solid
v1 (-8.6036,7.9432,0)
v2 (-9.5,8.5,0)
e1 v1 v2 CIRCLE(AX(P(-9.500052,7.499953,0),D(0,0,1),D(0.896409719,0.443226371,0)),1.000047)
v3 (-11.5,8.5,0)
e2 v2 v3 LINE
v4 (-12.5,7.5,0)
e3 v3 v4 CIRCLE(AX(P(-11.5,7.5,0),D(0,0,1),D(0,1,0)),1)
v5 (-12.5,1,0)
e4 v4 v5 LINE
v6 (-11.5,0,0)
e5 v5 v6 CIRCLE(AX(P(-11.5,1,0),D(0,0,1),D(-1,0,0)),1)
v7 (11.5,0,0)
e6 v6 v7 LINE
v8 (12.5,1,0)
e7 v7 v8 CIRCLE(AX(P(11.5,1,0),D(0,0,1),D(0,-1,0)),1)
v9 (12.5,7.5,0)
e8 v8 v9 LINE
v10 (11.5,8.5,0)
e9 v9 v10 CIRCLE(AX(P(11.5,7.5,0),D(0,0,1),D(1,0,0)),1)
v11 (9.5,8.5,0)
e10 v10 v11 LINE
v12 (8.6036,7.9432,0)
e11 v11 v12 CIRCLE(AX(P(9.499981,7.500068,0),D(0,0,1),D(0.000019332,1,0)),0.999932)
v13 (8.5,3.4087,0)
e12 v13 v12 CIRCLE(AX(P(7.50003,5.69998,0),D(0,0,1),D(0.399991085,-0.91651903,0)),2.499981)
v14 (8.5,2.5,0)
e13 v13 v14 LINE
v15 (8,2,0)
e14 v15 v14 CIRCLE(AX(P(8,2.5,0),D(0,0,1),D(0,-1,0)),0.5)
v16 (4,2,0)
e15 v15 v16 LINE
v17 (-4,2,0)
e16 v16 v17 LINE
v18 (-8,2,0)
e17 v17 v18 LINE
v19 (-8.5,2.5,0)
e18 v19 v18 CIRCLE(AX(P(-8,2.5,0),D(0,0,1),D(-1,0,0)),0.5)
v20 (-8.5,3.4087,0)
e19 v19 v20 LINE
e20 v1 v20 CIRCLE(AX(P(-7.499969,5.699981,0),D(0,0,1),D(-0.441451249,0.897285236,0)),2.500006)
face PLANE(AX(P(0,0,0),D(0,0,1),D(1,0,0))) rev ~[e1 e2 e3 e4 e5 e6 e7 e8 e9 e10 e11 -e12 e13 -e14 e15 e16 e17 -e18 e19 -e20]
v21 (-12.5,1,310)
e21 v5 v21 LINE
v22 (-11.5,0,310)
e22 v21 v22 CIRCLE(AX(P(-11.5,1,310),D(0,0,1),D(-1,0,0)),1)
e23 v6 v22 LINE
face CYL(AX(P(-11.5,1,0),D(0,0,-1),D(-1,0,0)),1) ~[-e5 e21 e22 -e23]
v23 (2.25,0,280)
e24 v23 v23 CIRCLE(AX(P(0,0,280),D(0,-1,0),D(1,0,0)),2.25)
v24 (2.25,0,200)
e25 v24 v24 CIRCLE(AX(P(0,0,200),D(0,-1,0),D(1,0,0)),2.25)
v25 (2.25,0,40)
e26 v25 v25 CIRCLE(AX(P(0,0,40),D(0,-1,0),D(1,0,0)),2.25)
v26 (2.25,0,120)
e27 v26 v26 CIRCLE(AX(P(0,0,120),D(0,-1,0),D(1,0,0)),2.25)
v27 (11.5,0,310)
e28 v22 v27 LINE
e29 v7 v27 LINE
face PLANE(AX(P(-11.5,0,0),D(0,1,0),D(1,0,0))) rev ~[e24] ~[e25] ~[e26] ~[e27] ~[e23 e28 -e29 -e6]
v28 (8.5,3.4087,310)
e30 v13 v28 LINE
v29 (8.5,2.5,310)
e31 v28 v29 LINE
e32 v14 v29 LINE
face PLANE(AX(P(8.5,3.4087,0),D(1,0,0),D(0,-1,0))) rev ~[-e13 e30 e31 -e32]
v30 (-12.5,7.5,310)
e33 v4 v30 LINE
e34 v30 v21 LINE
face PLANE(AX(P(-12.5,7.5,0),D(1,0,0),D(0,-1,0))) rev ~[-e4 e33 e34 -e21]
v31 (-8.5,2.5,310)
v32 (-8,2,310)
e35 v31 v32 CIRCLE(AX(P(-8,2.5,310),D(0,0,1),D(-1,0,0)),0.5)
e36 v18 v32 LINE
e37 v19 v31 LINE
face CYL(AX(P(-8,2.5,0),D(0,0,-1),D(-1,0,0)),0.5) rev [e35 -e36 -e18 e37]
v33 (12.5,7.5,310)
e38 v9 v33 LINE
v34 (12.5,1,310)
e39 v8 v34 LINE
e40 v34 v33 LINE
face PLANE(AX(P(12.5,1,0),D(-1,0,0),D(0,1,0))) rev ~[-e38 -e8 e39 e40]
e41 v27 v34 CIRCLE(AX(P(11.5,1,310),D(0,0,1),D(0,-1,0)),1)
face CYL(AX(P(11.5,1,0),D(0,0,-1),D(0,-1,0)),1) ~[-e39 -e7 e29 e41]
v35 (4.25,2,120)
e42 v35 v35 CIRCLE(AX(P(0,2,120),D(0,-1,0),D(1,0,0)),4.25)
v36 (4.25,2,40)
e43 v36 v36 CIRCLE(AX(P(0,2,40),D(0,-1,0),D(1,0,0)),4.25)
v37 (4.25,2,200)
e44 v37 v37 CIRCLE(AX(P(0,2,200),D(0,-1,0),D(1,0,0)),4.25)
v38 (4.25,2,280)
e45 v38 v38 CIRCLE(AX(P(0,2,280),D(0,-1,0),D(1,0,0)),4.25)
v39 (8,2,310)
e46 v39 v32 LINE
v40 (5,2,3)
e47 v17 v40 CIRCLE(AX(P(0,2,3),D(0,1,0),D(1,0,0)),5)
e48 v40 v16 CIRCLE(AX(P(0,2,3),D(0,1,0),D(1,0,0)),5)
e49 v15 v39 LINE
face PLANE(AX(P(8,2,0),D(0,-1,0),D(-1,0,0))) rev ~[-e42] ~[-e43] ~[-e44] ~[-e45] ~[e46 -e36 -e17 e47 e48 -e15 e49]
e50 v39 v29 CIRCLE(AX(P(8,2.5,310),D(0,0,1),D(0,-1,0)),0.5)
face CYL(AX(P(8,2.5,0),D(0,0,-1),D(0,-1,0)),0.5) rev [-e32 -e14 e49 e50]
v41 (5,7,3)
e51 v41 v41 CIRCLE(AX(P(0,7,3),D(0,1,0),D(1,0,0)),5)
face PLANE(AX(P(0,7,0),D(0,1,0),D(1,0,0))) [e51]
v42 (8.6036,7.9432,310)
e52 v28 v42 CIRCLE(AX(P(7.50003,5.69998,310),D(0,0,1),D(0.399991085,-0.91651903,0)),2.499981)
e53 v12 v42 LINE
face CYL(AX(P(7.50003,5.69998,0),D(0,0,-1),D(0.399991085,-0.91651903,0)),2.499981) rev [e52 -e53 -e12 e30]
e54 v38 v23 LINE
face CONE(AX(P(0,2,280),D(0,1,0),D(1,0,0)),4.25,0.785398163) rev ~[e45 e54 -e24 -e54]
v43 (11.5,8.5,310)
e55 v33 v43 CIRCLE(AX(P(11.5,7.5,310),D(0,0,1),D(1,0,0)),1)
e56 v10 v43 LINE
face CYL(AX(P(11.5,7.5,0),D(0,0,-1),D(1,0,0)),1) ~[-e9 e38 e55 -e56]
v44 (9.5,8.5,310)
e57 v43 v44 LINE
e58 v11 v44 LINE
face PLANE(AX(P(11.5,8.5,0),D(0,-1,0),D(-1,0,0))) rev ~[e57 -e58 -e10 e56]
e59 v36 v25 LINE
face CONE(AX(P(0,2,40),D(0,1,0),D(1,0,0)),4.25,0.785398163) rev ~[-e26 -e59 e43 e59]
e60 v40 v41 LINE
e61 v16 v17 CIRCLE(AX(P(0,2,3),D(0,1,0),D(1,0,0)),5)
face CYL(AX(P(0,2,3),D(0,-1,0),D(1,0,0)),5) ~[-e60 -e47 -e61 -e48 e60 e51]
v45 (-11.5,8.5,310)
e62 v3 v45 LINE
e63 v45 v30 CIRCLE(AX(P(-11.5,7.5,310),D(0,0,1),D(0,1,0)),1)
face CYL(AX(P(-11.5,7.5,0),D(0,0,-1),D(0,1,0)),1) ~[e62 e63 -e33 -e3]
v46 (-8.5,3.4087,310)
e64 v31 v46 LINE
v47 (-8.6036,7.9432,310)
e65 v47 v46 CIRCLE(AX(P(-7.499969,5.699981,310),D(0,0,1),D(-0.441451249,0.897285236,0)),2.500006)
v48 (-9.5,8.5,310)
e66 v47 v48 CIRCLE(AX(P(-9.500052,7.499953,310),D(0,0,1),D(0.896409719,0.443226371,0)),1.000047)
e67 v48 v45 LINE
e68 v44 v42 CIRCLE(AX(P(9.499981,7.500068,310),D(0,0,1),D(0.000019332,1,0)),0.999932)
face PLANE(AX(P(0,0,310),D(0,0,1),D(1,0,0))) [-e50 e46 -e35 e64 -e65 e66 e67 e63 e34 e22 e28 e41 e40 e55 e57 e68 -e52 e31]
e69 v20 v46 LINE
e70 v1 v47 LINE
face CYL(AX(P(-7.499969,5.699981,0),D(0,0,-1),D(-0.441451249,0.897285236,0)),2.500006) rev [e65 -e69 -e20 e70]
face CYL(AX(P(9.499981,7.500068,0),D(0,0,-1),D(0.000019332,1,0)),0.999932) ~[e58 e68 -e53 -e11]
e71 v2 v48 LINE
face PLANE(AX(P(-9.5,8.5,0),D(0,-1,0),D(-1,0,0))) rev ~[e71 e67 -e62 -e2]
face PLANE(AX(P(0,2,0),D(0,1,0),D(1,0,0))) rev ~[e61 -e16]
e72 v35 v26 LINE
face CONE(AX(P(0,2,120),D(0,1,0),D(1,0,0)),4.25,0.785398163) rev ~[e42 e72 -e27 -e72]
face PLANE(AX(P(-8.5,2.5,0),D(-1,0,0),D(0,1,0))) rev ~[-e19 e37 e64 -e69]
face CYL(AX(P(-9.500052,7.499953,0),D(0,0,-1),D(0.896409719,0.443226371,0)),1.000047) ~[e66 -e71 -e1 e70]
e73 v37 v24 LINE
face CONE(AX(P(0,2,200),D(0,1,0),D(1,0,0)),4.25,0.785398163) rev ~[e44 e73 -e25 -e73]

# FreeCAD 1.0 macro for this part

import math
import FreeCAD as App
import Part
import Sketcher
from FreeCAD import Vector
Q = App.Units.Quantity

doc = App.newDocument("Part")
body = doc.addObject("PartDesign::Body", "Body")

# Sketch on XY plane
sketch1 = doc.addObject("Sketcher::SketchObject", "Sketch")
body.addObject(sketch1)
sketch1.AttachmentSupport = (doc.XY_Plane, [""])
sketch1.MapMode = "FlatFace"
sketch1.addGeometry([
    Part.LineSegment(Vector(-12.5, 7.5, 0), Vector(-12.5, 1, 0)),  # 0
    Part.ArcOfCircle(Part.Circle(Vector(-11.5, 1, 0), Vector(0, 0, 1), 1), math.radians(180), math.radians(270)),  # 1
    Part.LineSegment(Vector(-11.5, 0, 0), Vector(11.5, 0, 0)),  # 2
    Part.ArcOfCircle(Part.Circle(Vector(11.5, 1, 0), Vector(0, 0, 1), 1), math.radians(-90), math.radians(0)),  # 3
    Part.LineSegment(Vector(12.5, 1, 0), Vector(12.5, 7.5, 0)),  # 4
    Part.ArcOfCircle(Part.Circle(Vector(11.5, 7.5, 0), Vector(0, 0, 1), 1), math.radians(0), math.radians(90)),  # 5
    Part.LineSegment(Vector(11.5, 8.5, 0), Vector(9.5, 8.5, 0)),  # 6
    Part.ArcOfCircle(Part.Circle(Vector(9.5, 7.5, 0), Vector(0, 0, 1), 1), math.radians(90), math.radians(154)),  # 7
    Part.ArcOfCircle(Part.Circle(Vector(7.5, 5.7, 0), Vector(0, 0, 1), 2.5), math.radians(-66), math.radians(64)),  # 8
    Part.LineSegment(Vector(8.5, 3.4, 0), Vector(8.5, 2.5, 0)),  # 9
    Part.ArcOfCircle(Part.Circle(Vector(8, 2.5, 0), Vector(0, 0, 1), 0.5), math.radians(-90), math.radians(0)),  # 10
    Part.LineSegment(Vector(8, 2, 0), Vector(-8, 2, 0)),  # 11
    Part.ArcOfCircle(Part.Circle(Vector(-8, 2.5, 0), Vector(0, 0, 1), 0.5), math.radians(180), math.radians(270)),  # 12
    Part.LineSegment(Vector(-8.5, 2.5, 0), Vector(-8.5, 3.4, 0)),  # 13
    Part.ArcOfCircle(Part.Circle(Vector(-7.5, 5.7, 0), Vector(0, 0, 1), 2.5), math.radians(116), math.radians(246)),  # 14
    Part.ArcOfCircle(Part.Circle(Vector(-9.5, 7.5, 0), Vector(0, 0, 1), 1), math.radians(26), math.radians(90)),  # 15
    Part.LineSegment(Vector(-9.5, 8.5, 0), Vector(-11.5, 8.5, 0)),  # 16
    Part.ArcOfCircle(Part.Circle(Vector(-11.5, 7.5, 0), Vector(0, 0, 1), 1), math.radians(90), math.radians(180)),  # 17
], False)
sketch1.addConstraint([
    Sketcher.Constraint("Tangent", 0, 2, 1, 1),
    Sketcher.Constraint("Tangent", 1, 2, 2, 1),
    Sketcher.Constraint("Tangent", 2, 2, 3, 1),
    Sketcher.Constraint("Tangent", 3, 2, 4, 1),
    Sketcher.Constraint("Tangent", 4, 2, 5, 1),
    Sketcher.Constraint("Tangent", 5, 2, 6, 1),
    Sketcher.Constraint("Tangent", 6, 2, 7, 1),
    Sketcher.Constraint("Coincident", 7, 2, 8, 2),
    Sketcher.Constraint("Coincident", 8, 1, 9, 1),
    Sketcher.Constraint("Tangent", 9, 2, 10, 2),
    Sketcher.Constraint("Tangent", 10, 1, 11, 1),
    Sketcher.Constraint("Tangent", 11, 2, 12, 2),
    Sketcher.Constraint("Tangent", 12, 1, 13, 1),
    Sketcher.Constraint("Coincident", 13, 2, 14, 2),
    Sketcher.Constraint("Coincident", 14, 1, 15, 1),
    Sketcher.Constraint("Tangent", 15, 2, 16, 1),
    Sketcher.Constraint("Tangent", 16, 2, 17, 1),
    Sketcher.Constraint("Tangent", 17, 2, 0, 1),
    Sketcher.Constraint("Vertical", 0),
    Sketcher.Constraint("Horizontal", 2),
    Sketcher.Constraint("Vertical", 4),
    Sketcher.Constraint("Horizontal", 6),
    Sketcher.Constraint("Vertical", 9),
    Sketcher.Constraint("Horizontal", 11),
    Sketcher.Constraint("Vertical", 13),
    Sketcher.Constraint("Horizontal", 16),
    Sketcher.Constraint("Equal", 1, 3),
    Sketcher.Constraint("Equal", 3, 5),
    Sketcher.Constraint("Equal", 5, 7),
    Sketcher.Constraint("Equal", 10, 12),
    Sketcher.Constraint("Equal", 8, 14),
    Sketcher.Constraint("Equal", 7, 15),
    Sketcher.Constraint("Equal", 15, 17),
    Sketcher.Constraint("Symmetric", 1, 2, 2, 2, -1, 1),
    Sketcher.Constraint("Symmetric", 8, 3, 14, 3, -2),
    Sketcher.Constraint("Symmetric", 7, 3, 15, 3, -2),
    Sketcher.Constraint("Horizontal", 8, 1, 13, 2),
    Sketcher.Constraint("Radius", 1, 1.0),
    Sketcher.Constraint("Radius", 8, 2.5),
    Sketcher.Constraint("Radius", 10, 0.5),
    Sketcher.Constraint("DistanceX", 2, 1, 2, 2, 23.0),
    Sketcher.Constraint("DistanceX", 6, 2, 6, 1, 2.0),
    Sketcher.Constraint("DistanceX", 11, 2, 11, 1, 16.0),
    Sketcher.Constraint("DistanceY", 0, 2, 0, 1, 6.5),
    Sketcher.Constraint("DistanceY", -1, 1, 10, 1, 2.0),
    Sketcher.Constraint("DistanceX", 8, 3, 7, 3, 2.0),
    Sketcher.Constraint("DistanceY", -1, 1, 8, 3, 5.7),
])
pad1 = doc.addObject("PartDesign::Pad", "Pad")
body.addObject(pad1)
pad1.Profile = sketch1
pad1.Length = 310

# Sketch on XY plane
sketch2 = doc.addObject("Sketcher::SketchObject", "Sketch001")
body.addObject(sketch2)
sketch2.AttachmentSupport = (doc.XY_Plane, [""])
sketch2.MapMode = "FlatFace"
sketch2.AttachmentOffset = App.Placement(Vector(0, 0, 40), App.Rotation())
sketch2.addGeometry([
    Part.LineSegment(Vector(0, 2, 0), Vector(0, 0, 0)),
    Part.LineSegment(Vector(0, 0, 0), Vector(2.2, 0, 0)),
    Part.LineSegment(Vector(2.2, 0, 0), Vector(4.2, 2, 0)),
    Part.LineSegment(Vector(4.2, 2, 0), Vector(0, 2, 0)),
], False)
sketch2.addConstraint([
    Sketcher.Constraint("Coincident", 0, 2, 1, 1),
    Sketcher.Constraint("Coincident", 1, 2, 2, 1),
    Sketcher.Constraint("Coincident", 2, 2, 3, 1),
    Sketcher.Constraint("Coincident", 3, 2, 0, 1),
    Sketcher.Constraint("Vertical", 0),
    Sketcher.Constraint("Horizontal", 1),
    Sketcher.Constraint("Horizontal", 3),
    Sketcher.Constraint("Coincident", 0, 2, -1, 1),
    Sketcher.Constraint("DistanceY", 0, 2, 0, 1, 2.0),
    Sketcher.Constraint("Angle", 2, Q("45 deg")),
    Sketcher.Constraint("DistanceX", 1, 1, 1, 2, 2.25),
])
groove = doc.addObject("PartDesign::Groove", "Groove")
body.addObject(groove)
groove.Profile = sketch2
groove.ReferenceAxis = (sketch2, ["V_Axis"])
groove.Angle = 360
doc.recompute()

linearpattern = doc.addObject("PartDesign::LinearPattern", "LinearPattern")
body.addObject(linearpattern)
linearpattern.Originals = [groove]
linearpattern.Direction = (doc.Z_Axis, [""])
linearpattern.Mode = "offset"
linearpattern.Offset = 80
linearpattern.Occurrences = 11
body.Tip = linearpattern

# Sketch on XZ plane
sketch3 = doc.addObject("Sketcher::SketchObject", "Sketch002")
body.addObject(sketch3)
sketch3.AttachmentSupport = (doc.XZ_Plane, [""])
sketch3.MapMode = "FlatFace"
sketch3.AttachmentOffset = App.Placement(Vector(0, 0, -2), App.Rotation())
sketch3.addGeometry(Part.Circle(Vector(0, 3, 0), Vector(0, 0, 1), 5), False)
sketch3.addConstraint([
    Sketcher.Constraint("PointOnObject", 0, 3, -2),
    Sketcher.Constraint("Diameter", 0, 10.0),
    Sketcher.Constraint("DistanceY", -1, 1, 0, 3, 3.0),
])
pad2 = doc.addObject("PartDesign::Pad", "Pad001")
body.addObject(pad2)
pad2.Profile = sketch3
pad2.Length = 5
pad2.Reversed = True

doc.recompute()
